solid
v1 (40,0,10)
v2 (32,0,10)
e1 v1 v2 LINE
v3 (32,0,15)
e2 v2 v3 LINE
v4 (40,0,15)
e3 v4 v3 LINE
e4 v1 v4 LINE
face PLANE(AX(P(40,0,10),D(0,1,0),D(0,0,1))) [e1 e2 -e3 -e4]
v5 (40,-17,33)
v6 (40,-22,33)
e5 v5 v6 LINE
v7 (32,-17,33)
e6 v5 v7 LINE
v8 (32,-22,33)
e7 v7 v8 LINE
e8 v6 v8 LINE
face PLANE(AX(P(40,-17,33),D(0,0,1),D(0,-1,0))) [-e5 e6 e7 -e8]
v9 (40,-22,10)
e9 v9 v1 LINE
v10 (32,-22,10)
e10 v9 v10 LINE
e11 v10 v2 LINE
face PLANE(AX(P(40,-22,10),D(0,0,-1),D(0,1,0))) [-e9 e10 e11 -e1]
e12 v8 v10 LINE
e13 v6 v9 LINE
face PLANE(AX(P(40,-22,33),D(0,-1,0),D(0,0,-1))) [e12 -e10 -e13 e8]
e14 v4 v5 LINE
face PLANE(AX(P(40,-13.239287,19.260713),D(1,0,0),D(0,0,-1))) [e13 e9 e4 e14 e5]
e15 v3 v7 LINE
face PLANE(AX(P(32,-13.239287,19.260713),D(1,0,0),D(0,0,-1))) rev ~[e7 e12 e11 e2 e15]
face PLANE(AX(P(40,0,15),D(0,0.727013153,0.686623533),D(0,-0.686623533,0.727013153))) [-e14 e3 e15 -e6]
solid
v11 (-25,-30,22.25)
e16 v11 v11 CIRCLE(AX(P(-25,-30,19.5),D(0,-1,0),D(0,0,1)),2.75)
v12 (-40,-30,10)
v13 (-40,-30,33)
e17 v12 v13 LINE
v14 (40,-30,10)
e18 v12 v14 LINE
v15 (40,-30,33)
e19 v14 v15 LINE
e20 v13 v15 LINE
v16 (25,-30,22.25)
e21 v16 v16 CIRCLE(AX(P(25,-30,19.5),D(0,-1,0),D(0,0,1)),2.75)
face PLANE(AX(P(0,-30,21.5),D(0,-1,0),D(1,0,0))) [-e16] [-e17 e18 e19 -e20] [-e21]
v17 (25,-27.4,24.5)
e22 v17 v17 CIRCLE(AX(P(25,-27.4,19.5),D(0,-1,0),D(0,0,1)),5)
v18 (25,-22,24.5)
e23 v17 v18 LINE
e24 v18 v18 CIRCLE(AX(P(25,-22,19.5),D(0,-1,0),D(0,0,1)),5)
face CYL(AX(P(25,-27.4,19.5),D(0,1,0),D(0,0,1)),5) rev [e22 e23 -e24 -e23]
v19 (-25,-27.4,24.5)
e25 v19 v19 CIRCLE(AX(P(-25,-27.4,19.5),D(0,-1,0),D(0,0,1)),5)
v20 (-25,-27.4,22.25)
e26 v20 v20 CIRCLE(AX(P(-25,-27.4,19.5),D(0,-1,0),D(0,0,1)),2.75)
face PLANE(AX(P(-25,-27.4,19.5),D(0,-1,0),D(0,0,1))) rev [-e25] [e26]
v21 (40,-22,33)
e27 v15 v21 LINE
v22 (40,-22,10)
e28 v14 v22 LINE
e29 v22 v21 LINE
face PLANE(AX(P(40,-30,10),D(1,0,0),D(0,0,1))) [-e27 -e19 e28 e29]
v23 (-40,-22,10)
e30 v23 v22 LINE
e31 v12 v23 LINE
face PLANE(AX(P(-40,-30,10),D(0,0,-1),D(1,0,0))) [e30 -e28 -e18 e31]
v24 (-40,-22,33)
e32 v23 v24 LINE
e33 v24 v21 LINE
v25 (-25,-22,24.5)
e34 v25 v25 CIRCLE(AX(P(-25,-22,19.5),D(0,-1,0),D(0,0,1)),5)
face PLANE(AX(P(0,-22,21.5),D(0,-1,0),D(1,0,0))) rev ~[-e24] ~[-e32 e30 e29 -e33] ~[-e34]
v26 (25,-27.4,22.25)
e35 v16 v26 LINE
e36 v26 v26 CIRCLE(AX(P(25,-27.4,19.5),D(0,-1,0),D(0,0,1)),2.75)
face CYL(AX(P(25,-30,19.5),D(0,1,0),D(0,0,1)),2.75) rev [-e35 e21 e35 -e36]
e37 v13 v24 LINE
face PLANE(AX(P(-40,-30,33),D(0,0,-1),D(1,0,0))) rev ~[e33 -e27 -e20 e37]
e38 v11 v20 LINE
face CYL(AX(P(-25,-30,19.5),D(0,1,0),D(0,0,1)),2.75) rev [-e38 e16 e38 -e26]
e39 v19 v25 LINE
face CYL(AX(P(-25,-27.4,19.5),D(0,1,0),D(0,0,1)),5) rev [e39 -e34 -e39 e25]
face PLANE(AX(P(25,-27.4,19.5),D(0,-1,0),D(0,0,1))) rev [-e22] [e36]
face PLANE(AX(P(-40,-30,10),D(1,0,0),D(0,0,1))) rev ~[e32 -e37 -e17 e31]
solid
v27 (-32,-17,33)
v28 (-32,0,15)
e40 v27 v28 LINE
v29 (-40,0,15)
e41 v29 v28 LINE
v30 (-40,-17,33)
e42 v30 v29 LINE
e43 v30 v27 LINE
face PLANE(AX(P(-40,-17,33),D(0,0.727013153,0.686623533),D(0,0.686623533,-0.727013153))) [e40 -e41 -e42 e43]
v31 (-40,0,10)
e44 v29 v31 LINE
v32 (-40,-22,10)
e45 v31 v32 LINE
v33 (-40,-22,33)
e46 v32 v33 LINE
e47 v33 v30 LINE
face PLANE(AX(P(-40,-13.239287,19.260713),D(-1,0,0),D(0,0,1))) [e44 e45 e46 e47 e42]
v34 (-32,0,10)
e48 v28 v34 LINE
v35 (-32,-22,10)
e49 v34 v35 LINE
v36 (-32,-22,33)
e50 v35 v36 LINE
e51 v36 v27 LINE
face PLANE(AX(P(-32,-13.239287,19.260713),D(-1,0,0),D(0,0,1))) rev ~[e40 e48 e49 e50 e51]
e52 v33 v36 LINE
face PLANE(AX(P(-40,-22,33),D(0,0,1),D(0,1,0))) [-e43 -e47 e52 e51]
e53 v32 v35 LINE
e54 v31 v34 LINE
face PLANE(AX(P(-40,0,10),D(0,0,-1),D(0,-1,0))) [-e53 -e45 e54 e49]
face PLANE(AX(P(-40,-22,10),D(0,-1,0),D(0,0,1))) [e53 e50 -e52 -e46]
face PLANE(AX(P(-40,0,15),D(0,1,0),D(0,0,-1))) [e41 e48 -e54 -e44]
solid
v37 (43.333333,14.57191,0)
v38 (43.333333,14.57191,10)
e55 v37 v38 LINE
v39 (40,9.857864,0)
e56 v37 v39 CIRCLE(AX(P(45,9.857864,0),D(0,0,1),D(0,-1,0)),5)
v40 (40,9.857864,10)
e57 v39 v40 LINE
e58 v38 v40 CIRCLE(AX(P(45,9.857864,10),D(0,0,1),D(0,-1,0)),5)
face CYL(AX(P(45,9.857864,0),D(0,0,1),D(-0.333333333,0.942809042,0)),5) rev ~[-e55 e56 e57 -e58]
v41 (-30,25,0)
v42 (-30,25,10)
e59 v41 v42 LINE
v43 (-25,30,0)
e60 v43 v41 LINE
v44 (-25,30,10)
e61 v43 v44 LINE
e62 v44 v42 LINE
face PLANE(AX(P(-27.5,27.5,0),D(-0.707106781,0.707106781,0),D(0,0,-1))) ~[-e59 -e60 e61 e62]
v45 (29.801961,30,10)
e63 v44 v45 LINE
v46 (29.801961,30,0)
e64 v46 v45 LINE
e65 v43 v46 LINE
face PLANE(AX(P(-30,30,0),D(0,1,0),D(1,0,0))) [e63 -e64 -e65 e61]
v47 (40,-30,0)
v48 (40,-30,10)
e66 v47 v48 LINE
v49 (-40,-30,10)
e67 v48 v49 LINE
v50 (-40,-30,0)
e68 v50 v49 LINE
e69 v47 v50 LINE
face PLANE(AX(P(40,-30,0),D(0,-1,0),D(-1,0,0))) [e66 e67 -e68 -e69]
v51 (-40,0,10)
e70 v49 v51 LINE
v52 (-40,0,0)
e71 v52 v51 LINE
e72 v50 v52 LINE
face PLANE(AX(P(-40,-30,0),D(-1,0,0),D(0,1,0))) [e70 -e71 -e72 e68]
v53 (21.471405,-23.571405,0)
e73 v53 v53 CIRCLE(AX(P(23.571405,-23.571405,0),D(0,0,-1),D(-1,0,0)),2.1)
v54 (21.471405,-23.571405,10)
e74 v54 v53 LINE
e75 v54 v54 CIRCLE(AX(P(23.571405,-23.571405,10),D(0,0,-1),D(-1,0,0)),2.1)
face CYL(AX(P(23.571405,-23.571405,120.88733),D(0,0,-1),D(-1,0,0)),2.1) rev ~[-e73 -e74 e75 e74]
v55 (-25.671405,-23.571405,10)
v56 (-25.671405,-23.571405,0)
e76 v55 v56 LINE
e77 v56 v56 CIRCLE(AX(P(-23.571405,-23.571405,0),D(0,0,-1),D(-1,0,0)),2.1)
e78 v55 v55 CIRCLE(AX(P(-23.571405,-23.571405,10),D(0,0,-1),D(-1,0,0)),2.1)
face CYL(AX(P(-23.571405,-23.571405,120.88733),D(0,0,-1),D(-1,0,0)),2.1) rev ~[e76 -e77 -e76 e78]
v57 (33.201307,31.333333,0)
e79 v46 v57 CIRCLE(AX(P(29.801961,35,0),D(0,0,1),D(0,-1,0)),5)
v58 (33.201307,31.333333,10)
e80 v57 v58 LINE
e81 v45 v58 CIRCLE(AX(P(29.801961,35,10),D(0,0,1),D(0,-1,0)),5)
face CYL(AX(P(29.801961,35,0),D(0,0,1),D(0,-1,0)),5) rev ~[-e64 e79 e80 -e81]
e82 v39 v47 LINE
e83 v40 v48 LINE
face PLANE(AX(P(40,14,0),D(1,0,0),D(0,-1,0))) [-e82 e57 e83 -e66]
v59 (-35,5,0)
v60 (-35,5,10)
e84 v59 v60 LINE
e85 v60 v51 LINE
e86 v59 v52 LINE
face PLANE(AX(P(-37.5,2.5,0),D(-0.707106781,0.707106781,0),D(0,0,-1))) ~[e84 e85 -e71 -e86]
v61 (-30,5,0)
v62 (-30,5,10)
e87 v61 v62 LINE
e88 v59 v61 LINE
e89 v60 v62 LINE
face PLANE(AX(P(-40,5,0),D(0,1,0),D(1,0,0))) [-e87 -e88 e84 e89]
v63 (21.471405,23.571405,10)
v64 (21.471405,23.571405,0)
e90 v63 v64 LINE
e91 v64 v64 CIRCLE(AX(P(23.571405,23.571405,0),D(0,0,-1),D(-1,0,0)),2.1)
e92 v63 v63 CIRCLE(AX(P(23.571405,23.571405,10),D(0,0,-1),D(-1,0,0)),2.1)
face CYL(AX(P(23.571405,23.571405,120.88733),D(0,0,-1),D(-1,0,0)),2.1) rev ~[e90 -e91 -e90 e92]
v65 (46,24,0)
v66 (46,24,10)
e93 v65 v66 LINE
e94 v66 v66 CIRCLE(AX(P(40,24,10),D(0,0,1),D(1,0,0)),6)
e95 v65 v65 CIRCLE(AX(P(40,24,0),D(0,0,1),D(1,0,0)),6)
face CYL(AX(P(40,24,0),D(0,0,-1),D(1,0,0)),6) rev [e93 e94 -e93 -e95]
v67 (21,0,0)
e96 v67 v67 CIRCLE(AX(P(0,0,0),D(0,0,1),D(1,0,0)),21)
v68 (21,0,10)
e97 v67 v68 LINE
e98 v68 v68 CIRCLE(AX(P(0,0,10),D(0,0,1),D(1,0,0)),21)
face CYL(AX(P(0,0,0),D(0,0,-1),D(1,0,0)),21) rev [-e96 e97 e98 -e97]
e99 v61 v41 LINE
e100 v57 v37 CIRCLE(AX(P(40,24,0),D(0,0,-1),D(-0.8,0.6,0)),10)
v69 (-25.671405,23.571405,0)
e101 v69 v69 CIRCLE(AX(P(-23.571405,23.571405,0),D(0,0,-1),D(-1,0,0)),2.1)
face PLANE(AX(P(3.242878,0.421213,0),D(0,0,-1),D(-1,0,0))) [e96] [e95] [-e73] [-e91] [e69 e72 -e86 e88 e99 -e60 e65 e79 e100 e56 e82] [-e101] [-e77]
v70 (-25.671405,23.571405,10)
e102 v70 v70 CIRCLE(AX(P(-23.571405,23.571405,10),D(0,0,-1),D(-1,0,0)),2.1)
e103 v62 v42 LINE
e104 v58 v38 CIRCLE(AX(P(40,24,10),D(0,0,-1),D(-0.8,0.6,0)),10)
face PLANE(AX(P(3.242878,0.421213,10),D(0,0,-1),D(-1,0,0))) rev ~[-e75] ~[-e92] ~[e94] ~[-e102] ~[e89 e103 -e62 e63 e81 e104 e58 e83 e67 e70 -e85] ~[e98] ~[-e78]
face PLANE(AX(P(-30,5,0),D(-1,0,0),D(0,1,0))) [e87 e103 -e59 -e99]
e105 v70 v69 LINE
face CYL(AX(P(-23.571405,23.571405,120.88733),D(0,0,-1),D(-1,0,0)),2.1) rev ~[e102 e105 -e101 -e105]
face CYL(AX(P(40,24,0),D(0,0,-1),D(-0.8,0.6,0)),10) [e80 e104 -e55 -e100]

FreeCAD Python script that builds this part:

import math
import FreeCAD as App
import Part
import Sketcher


def edges_at(feature, points):
    """Names of the edges that pass closest to the given points."""
    edges = feature.Shape.Edges
    near = lambda p: min(range(len(edges)), key=lambda i: edges[i].distToShape(Part.Vertex(*p))[0])
    return sorted({f"Edge{near(p) + 1}" for p in points})


def add_polygon(sketch, points):
    """Adds a closed chain of lines whose ends are joined by coincident constraints."""
    first, n = sketch.GeometryCount, len(points)
    for a, b in zip(points, points[1:] + points[:1]):
        sketch.addGeometry(Part.LineSegment(App.Vector(*a, 0), App.Vector(*b, 0)), False)
    for i in range(n):
        sketch.addConstraint(Sketcher.Constraint("Coincident", first + i, 2, first + (i + 1) % n, 1))

doc = App.newDocument("Part")
body = doc.addObject("PartDesign::Body", "Body")

# Sketch on XY plane
sketch1 = doc.addObject("Sketcher::SketchObject", "Sketch")
body.addObject(sketch1)
sketch1.AttachmentSupport = (doc.XY_Plane, [""])
sketch1.MapMode = "FlatFace"
sketch1.addGeometry([
    Part.LineSegment(App.Vector(32, 30, 0), App.Vector(-30, 30, 0)),  # 0
    Part.LineSegment(App.Vector(-30, 30, 0), App.Vector(-30, 5, 0)),  # 1
    Part.LineSegment(App.Vector(-30, 5, 0), App.Vector(-40, 5, 0)),  # 2
    Part.LineSegment(App.Vector(-40, 5, 0), App.Vector(-40, -30, 0)),  # 3
    Part.LineSegment(App.Vector(-40, -30, 0), App.Vector(40, -30, 0)),  # 4
    Part.LineSegment(App.Vector(40, -30, 0), App.Vector(40, 14, 0)),  # 5
    Part.ArcOfCircle(Part.Circle(App.Vector(40, 24, 0), App.Vector(0, 0, 1), 10), math.radians(-90), math.radians(143)),  # 6
    Part.Circle(App.Vector(0, 0, 0), App.Vector(0, 0, 1), 21),  # 7
    Part.Circle(App.Vector(40, 24, 0), App.Vector(0, 0, 1), 6),  # 8
], False)
sketch1.addConstraint([
    Sketcher.Constraint("Coincident", 0, 2, 1, 1),
    Sketcher.Constraint("Coincident", 1, 2, 2, 1),
    Sketcher.Constraint("Coincident", 2, 2, 3, 1),
    Sketcher.Constraint("Coincident", 3, 2, 4, 1),
    Sketcher.Constraint("Coincident", 4, 2, 5, 1),
    Sketcher.Constraint("Coincident", 5, 2, 6, 1),
    Sketcher.Constraint("Coincident", 6, 2, 0, 1),
    Sketcher.Constraint("Horizontal", 0),
    Sketcher.Constraint("Vertical", 1),
    Sketcher.Constraint("Horizontal", 2),
    Sketcher.Constraint("Vertical", 3),
    Sketcher.Constraint("Horizontal", 4),
    Sketcher.Constraint("Vertical", 5),
    Sketcher.Constraint("Coincident", 7, 3, -1, 1),
    Sketcher.Constraint("Coincident", 8, 3, 6, 3),
    Sketcher.Constraint("Vertical", 8, 3, 4, 2),
    Sketcher.Constraint("Diameter", 7, 42.0),
    Sketcher.Constraint("Diameter", 8, 12.0),
    Sketcher.Constraint("Radius", 6, 10.0),
    Sketcher.Constraint("DistanceX", 0, 2, 0, 1, 62.0),
    Sketcher.Constraint("DistanceX", 2, 2, 2, 1, 10.0),
    Sketcher.Constraint("DistanceX", 4, 1, 4, 2, 80.0),
    Sketcher.Constraint("DistanceY", 1, 2, 1, 1, 25.0),
    Sketcher.Constraint("DistanceY", 3, 2, 3, 1, 35.0),
    Sketcher.Constraint("DistanceX", -1, 1, 6, 3, 40.0),
    Sketcher.Constraint("DistanceY", -1, 1, 6, 3, 24.0),
])
pad1 = doc.addObject("PartDesign::Pad", "Pad")
body.addObject(pad1)
pad1.Profile = sketch1
pad1.Length = 10

# Sketch on XY plane
sketch2 = doc.addObject("Sketcher::SketchObject", "Sketch001")
body.addObject(sketch2)
sketch2.AttachmentSupport = (doc.XY_Plane, [""])
sketch2.MapMode = "FlatFace"
sketch2.AttachmentOffset = App.Placement(App.Vector(0, 0, 10), App.Rotation())
sketch2.addGeometry([
    Part.Circle(App.Vector(-23.6, 23.6, 0), App.Vector(0, 0, 1), 2.1),
    Part.Circle(App.Vector(23.6, 23.6, 0), App.Vector(0, 0, 1), 2.1),
    Part.Circle(App.Vector(23.6, -23.6, 0), App.Vector(0, 0, 1), 2.1),
    Part.Circle(App.Vector(-23.6, -23.6, 0), App.Vector(0, 0, 1), 2.1),
], False)
sketch2.addConstraint([
    Sketcher.Constraint("Equal", 0, 1),
    Sketcher.Constraint("Equal", 1, 2),
    Sketcher.Constraint("Equal", 2, 3),
    Sketcher.Constraint("Symmetric", 0, 3, 2, 3, -1, 1),
    Sketcher.Constraint("Symmetric", 1, 3, 3, 3, -1, 1),
    Sketcher.Constraint("Symmetric", 0, 3, 1, 3, -2),
    Sketcher.Constraint("Diameter", 0, 4.2),
    Sketcher.Constraint("DistanceX", 0, 3, 1, 3, 47.142809),
    Sketcher.Constraint("DistanceY", 2, 3, 1, 3, 47.142809),
])
doc.recompute()
hole = doc.addObject("PartDesign::Hole", "Hole")
body.addObject(hole)
hole.Profile = sketch2
hole.ThreadType = "None"
hole.Diameter = 4.2
hole.DepthType = "ThroughAll"
doc.recompute()

chamfer = doc.addObject("PartDesign::Chamfer", "Chamfer")
body.addObject(chamfer)
chamfer.Base = (hole, edges_at(hole, [(-30, 30, 5), (-40, 5, 5)]))
chamfer.Size = 5
doc.recompute()

fillet = doc.addObject("PartDesign::Fillet", "Fillet")
body.addObject(fillet)
fillet.Base = (chamfer, edges_at(chamfer, [(32, 30, 5), (40, 14, 5)]))
fillet.Radius = 5
body2 = doc.addObject("PartDesign::Body", "Body001")

# Sketch on XZ plane
sketch3 = doc.addObject("Sketcher::SketchObject", "Sketch002")
body2.addObject(sketch3)
sketch3.AttachmentSupport = (doc.getObject("XZ_Plane001"), [""])
sketch3.MapMode = "FlatFace"
sketch3.AttachmentOffset = App.Placement(App.Vector(0, 0, 30), App.Rotation())
add_polygon(sketch3, [(-40, 33), (-40, 10), (40, 10), (40, 33)])  # lines 0-3
sketch3.addConstraint([
    Sketcher.Constraint("Vertical", 0),
    Sketcher.Constraint("Horizontal", 1),
    Sketcher.Constraint("Vertical", 2),
    Sketcher.Constraint("Horizontal", 3),
    Sketcher.Constraint("DistanceX", 1, 1, 1, 2, 80.0),
    Sketcher.Constraint("DistanceY", 0, 2, 0, 1, 23.0),
    Sketcher.Constraint("DistanceX", 0, 2, -1, 1, 40.0),
    Sketcher.Constraint("DistanceY", -1, 1, 0, 2, 10.0),
])
pad2 = doc.addObject("PartDesign::Pad", "Pad001")
body2.addObject(pad2)
pad2.Profile = sketch3
pad2.Length = 8
pad2.Reversed = True

# Sketch on YZ plane
sketch4 = doc.addObject("Sketcher::SketchObject", "Sketch003")
body2.addObject(sketch4)
sketch4.AttachmentSupport = (doc.getObject("YZ_Plane001"), [""])
sketch4.MapMode = "FlatFace"
sketch4.AttachmentOffset = App.Placement(App.Vector(0, 0, 25), App.Rotation())
add_polygon(sketch4, [(-30, 19.5), (-22, 19.5), (-22, 24.5), (-27.4, 24.5), (-27.4, 22.2), (-30, 22.2)])  # lines 0-5
sketch4.addGeometry(Part.LineSegment(App.Vector(-22, 19.5, 0), App.Vector(-30, 19.5, 0)), True)  # axis
sketch4.addConstraint([
    Sketcher.Constraint("Horizontal", 0),
    Sketcher.Constraint("Vertical", 1),
    Sketcher.Constraint("Horizontal", 2),
    Sketcher.Constraint("Vertical", 3),
    Sketcher.Constraint("Horizontal", 4),
    Sketcher.Constraint("Vertical", 5),
    Sketcher.Constraint("Horizontal", 6),
    Sketcher.Constraint("Coincident", 6, 1, 0, 2),
    Sketcher.Constraint("Vertical", 4, 2, 6, 2),
    Sketcher.Constraint("DistanceX", 0, 1, 0, 2, 8.0),
    Sketcher.Constraint("DistanceY", 1, 1, 1, 2, 5.0),
    Sketcher.Constraint("DistanceX", 2, 2, 2, 1, 5.4),
    Sketcher.Constraint("DistanceX", 0, 2, -1, 1, 22.0),
    Sketcher.Constraint("DistanceY", 3, 2, 3, 1, 2.25),
    Sketcher.Constraint("DistanceY", -1, 1, 0, 2, 19.5),
])
groove = doc.addObject("PartDesign::Groove", "Groove")
body2.addObject(groove)
groove.Profile = sketch4
groove.ReferenceAxis = (sketch4, ["Axis0"])
groove.Angle = 360
doc.recompute()

linearpattern = doc.addObject("PartDesign::LinearPattern", "LinearPattern")
body2.addObject(linearpattern)
linearpattern.Originals = [groove]
linearpattern.Direction = (doc.getObject("X_Axis001"), [""])
linearpattern.Mode = "offset"
linearpattern.Offset = 50
linearpattern.Occurrences = 2
linearpattern.Reversed = True
body2.Tip = linearpattern
body3 = doc.addObject("PartDesign::Body", "Body002")

# Sketch on YZ plane
sketch5 = doc.addObject("Sketcher::SketchObject", "Sketch004")
body3.addObject(sketch5)
sketch5.AttachmentSupport = (doc.getObject("YZ_Plane002"), [""])
sketch5.MapMode = "FlatFace"
sketch5.AttachmentOffset = App.Placement(App.Vector(0, 0, 40), App.Rotation())
add_polygon(sketch5, [(0, 10), (0, 15), (-17, 33), (-22, 33), (-22, 10)])  # lines 0-4
sketch5.addConstraint([
    Sketcher.Constraint("Vertical", 0),
    Sketcher.Constraint("Horizontal", 2),
    Sketcher.Constraint("Vertical", 3),
    Sketcher.Constraint("Horizontal", 4),
    Sketcher.Constraint("PointOnObject", 0, 2, -2),
    Sketcher.Constraint("Equal", 2, 0),
    Sketcher.Constraint("DistanceX", 2, 2, 2, 1, 5.0),
    Sketcher.Constraint("DistanceX", 4, 1, 4, 2, 22.0),
    Sketcher.Constraint("DistanceY", 3, 2, 3, 1, 23.0),
    Sketcher.Constraint("DistanceY", -1, 1, 0, 2, 15.0),
])
pad3 = doc.addObject("PartDesign::Pad", "Pad002")
body3.addObject(pad3)
pad3.Profile = sketch5
pad3.Length = 8
pad3.Reversed = True
body4 = doc.addObject("PartDesign::Body", "Body003")

# Sketch on YZ plane
sketch6 = doc.addObject("Sketcher::SketchObject", "Sketch005")
body4.addObject(sketch6)
sketch6.AttachmentSupport = (doc.getObject("YZ_Plane003"), [""])
sketch6.MapMode = "FlatFace"
sketch6.AttachmentOffset = App.Placement(App.Vector(0, 0, -40), App.Rotation())
add_polygon(sketch6, [(0, 15), (0, 10), (-22, 10), (-22, 33), (-17, 33)])  # lines 0-4
sketch6.addConstraint([
    Sketcher.Constraint("Vertical", 0),
    Sketcher.Constraint("Horizontal", 1),
    Sketcher.Constraint("Vertical", 2),
    Sketcher.Constraint("Horizontal", 3),
    Sketcher.Constraint("PointOnObject", 0, 2, -2),
    Sketcher.Constraint("Equal", 3, 0),
    Sketcher.Constraint("DistanceX", 1, 2, 1, 1, 22.0),
    Sketcher.Constraint("DistanceX", 3, 1, 3, 2, 5.0),
    Sketcher.Constraint("DistanceY", 2, 1, 2, 2, 23.0),
    Sketcher.Constraint("DistanceY", -1, 1, 0, 2, 10.0),
])
pad4 = doc.addObject("PartDesign::Pad", "Pad003")
body4.addObject(pad4)
pad4.Profile = sketch6
pad4.Length = 8

doc.recompute()
